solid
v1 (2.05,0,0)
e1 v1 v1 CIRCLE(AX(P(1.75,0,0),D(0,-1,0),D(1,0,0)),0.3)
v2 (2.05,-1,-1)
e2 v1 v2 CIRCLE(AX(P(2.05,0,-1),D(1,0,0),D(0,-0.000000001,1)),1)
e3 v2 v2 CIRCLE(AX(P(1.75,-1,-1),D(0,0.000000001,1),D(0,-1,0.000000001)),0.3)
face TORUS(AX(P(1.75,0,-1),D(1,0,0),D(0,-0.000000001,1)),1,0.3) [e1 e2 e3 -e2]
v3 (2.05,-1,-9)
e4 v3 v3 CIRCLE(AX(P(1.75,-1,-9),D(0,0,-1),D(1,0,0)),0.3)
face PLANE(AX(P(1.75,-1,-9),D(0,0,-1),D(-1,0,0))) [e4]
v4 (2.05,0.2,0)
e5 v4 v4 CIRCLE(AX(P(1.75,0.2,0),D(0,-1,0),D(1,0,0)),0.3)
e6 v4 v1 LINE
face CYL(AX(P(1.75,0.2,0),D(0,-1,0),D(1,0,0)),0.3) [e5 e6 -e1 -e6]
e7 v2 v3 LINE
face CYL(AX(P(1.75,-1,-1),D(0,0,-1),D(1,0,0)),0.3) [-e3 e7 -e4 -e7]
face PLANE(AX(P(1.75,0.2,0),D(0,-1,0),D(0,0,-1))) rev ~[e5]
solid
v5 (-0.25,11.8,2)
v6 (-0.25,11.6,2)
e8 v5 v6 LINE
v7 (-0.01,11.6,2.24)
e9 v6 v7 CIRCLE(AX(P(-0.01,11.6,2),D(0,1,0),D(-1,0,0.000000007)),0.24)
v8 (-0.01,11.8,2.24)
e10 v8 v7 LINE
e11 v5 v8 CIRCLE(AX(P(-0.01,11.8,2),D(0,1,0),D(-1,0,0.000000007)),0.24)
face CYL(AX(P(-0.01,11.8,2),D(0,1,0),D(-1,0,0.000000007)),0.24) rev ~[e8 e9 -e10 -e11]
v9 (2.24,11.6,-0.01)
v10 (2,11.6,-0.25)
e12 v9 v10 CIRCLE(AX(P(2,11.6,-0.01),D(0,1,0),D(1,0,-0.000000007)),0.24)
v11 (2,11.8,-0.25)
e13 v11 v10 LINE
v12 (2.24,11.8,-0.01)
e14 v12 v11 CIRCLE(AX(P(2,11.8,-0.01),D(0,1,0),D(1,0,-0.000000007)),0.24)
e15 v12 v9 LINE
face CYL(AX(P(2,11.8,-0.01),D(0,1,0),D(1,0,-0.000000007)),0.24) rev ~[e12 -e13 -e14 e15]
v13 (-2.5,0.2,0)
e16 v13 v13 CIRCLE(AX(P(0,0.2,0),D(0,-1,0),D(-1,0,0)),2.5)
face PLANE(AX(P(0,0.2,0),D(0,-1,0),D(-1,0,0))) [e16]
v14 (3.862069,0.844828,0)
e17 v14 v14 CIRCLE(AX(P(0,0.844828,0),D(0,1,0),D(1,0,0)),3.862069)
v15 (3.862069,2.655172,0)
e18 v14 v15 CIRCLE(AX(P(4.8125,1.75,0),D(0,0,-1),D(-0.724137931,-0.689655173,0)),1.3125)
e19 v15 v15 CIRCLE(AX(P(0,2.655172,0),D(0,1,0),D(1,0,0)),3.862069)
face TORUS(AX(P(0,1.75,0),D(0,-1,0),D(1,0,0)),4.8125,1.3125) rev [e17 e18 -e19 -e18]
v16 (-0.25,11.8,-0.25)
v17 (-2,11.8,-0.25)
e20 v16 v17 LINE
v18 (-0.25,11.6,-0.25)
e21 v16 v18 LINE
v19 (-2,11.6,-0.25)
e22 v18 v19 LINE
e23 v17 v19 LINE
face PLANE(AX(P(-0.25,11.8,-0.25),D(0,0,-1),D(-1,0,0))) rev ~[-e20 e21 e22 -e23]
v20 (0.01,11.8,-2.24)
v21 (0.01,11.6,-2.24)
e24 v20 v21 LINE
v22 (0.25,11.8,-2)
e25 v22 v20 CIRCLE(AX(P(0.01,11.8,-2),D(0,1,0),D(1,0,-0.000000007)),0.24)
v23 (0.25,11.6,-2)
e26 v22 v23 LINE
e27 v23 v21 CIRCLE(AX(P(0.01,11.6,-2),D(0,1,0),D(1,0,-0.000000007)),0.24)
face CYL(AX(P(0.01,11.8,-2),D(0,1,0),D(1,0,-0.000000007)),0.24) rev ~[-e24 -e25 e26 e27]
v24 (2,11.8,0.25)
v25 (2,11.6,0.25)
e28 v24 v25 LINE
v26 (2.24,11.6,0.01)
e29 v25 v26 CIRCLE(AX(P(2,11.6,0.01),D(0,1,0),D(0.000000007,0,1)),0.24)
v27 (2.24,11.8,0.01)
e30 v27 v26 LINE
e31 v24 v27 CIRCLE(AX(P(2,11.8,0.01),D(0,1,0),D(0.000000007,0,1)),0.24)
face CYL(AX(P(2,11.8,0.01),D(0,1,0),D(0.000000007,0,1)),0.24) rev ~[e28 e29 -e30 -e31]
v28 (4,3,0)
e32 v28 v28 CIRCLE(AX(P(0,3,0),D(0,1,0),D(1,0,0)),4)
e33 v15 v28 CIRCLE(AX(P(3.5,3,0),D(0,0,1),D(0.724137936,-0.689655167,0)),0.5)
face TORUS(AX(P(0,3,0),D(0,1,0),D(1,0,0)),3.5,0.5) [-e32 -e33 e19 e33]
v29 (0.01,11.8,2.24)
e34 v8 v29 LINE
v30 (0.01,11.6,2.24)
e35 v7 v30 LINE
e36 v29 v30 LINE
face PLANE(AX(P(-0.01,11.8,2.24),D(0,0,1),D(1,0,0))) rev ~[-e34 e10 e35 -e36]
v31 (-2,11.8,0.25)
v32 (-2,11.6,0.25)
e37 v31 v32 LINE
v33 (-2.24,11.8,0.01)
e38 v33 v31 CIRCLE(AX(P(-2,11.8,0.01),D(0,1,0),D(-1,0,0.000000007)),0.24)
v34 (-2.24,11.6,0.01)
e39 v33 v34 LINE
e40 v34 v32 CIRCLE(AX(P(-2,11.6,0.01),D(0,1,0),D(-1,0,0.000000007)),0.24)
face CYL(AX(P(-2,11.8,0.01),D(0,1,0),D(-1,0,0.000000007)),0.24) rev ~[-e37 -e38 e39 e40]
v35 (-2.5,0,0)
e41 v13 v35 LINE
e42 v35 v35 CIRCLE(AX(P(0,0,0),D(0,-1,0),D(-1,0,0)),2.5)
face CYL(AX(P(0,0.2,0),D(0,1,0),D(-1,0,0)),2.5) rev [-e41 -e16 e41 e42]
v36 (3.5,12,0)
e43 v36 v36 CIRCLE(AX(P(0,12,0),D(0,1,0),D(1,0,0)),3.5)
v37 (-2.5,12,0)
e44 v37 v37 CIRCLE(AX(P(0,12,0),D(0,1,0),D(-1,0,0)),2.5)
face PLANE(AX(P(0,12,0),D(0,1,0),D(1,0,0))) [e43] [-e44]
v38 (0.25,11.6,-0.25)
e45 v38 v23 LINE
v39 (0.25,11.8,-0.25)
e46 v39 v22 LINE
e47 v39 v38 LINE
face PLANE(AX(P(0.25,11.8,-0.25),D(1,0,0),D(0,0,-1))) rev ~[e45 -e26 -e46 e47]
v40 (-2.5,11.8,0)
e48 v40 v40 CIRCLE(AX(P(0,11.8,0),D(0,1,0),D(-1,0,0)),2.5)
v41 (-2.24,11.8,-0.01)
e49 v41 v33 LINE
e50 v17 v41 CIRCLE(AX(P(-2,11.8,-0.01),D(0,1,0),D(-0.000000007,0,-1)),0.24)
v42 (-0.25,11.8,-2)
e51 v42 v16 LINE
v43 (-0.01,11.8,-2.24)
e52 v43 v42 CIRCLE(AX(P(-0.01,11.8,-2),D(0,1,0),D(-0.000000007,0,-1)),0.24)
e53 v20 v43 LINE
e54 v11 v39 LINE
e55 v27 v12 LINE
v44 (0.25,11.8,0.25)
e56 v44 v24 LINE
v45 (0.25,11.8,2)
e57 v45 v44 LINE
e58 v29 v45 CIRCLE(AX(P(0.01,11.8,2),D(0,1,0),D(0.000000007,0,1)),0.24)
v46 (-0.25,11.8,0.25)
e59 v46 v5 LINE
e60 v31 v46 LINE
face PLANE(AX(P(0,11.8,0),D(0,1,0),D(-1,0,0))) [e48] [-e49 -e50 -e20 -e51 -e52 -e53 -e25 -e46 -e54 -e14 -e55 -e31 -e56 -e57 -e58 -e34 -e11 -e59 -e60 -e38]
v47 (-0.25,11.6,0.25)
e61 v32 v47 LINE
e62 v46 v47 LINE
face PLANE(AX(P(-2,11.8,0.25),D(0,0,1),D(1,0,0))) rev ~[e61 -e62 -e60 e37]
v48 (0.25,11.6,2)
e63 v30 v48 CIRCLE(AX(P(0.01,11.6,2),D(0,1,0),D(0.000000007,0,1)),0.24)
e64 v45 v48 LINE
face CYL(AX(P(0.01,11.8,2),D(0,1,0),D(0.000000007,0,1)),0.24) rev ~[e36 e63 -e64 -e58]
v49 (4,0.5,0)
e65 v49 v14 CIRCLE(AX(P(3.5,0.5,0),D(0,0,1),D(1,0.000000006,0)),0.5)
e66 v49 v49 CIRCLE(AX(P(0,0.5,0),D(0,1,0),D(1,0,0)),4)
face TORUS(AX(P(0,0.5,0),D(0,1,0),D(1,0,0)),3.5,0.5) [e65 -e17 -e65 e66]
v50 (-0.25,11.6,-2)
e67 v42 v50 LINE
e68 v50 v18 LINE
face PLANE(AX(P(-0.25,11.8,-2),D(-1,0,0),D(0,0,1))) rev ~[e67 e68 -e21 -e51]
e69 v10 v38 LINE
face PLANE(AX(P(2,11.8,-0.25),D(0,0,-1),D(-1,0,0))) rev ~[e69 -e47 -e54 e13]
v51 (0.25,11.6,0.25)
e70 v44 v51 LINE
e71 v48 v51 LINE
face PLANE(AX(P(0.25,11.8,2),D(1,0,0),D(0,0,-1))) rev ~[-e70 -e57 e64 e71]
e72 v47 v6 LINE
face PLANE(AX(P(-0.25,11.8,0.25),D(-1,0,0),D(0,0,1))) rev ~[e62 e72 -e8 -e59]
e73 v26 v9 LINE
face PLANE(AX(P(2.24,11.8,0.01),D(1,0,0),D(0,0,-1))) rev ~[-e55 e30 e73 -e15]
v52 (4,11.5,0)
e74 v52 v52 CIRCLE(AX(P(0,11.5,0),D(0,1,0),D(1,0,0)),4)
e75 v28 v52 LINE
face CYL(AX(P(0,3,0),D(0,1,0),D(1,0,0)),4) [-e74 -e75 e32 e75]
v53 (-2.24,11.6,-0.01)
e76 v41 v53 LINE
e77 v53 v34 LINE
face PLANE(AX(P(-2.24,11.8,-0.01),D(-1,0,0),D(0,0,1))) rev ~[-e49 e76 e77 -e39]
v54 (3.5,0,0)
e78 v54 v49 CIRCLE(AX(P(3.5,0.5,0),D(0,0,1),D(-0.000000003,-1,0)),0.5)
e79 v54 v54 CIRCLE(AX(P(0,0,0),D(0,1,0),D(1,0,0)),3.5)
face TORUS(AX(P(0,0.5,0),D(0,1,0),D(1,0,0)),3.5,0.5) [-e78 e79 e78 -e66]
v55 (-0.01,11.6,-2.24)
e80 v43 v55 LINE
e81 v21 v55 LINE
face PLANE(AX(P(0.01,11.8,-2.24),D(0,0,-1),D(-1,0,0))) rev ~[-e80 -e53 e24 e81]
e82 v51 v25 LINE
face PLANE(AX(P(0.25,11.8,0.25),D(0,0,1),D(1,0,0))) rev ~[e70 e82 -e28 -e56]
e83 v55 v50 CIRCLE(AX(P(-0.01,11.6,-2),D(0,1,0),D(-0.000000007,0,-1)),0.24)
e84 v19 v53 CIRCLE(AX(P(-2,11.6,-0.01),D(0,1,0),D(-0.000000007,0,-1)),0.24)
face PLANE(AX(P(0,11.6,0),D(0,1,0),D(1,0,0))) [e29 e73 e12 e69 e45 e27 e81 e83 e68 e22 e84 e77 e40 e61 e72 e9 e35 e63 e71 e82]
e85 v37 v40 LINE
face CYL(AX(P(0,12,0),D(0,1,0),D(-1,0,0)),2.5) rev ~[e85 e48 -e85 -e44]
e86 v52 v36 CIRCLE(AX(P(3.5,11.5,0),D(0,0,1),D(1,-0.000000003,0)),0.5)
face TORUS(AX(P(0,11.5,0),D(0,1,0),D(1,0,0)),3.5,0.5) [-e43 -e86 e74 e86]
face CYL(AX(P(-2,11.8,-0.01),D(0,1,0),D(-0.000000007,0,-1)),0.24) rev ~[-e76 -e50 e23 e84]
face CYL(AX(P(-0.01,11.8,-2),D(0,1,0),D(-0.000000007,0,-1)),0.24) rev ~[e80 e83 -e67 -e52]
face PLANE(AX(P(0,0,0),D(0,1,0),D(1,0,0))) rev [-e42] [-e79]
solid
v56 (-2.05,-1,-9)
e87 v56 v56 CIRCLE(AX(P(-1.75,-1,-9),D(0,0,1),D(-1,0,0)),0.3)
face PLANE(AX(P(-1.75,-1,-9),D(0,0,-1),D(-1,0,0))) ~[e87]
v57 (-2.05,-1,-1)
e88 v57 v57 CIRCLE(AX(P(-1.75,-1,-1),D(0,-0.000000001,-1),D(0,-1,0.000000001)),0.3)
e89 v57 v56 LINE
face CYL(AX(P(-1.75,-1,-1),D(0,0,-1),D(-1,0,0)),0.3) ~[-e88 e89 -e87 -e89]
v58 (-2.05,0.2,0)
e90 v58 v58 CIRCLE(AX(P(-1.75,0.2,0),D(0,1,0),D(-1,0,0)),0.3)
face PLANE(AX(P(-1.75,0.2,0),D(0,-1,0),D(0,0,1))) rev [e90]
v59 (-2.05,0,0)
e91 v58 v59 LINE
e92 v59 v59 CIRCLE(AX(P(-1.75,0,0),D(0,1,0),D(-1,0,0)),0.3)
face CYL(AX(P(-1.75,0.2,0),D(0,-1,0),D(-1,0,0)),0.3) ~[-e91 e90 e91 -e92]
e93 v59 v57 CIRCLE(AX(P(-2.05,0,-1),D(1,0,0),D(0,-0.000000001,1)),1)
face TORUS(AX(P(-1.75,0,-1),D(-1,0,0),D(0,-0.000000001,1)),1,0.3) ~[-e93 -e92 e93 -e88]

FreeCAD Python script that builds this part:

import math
import FreeCAD as App
import Part
import Sketcher

doc = App.newDocument("Part")
body = doc.addObject("PartDesign::Body", "Body")

# Sketch on XY plane
sketch1 = body.newObject("Sketcher::SketchObject", "Sketch")
sketch1.AttachmentSupport = (doc.getObject("XY_Plane"), [""])
sketch1.MapMode = "FlatFace"
sketch1.addGeometry([
    Part.LineSegment(App.Vector(0, 0, 0), App.Vector(3.5, 0, 0)),  # 0
    Part.ArcOfCircle(Part.Circle(App.Vector(3.5, 0.5, 0), App.Vector(0, 0, 1), 0.5), math.radians(-90), math.radians(0)),  # 1
    Part.ArcOfCircle(Part.Circle(App.Vector(3.5, 0.5, 0), App.Vector(0, 0, 1), 0.5), math.radians(0), math.radians(44)),  # 2
    Part.ArcOfCircle(Part.Circle(App.Vector(4.81, 1.75, 0), App.Vector(0, 0, 1), 1.31), math.radians(136), math.radians(224)),  # 3
    Part.ArcOfCircle(Part.Circle(App.Vector(3.5, 3, 0), App.Vector(0, 0, 1), 0.5), math.radians(-44), math.radians(0)),  # 4
    Part.LineSegment(App.Vector(4, 3, 0), App.Vector(4, 11.5, 0)),  # 5
    Part.ArcOfCircle(Part.Circle(App.Vector(3.5, 11.5, 0), App.Vector(0, 0, 1), 0.5), math.radians(0), math.radians(90)),  # 6
    Part.LineSegment(App.Vector(3.5, 12, 0), App.Vector(0, 12, 0)),  # 7
    Part.LineSegment(App.Vector(0, 12, 0), App.Vector(0, 0, 0)),  # 8
], False)
sketch1.addConstraint([
    Sketcher.Constraint("Tangent", 0, 2, 1, 1),
    Sketcher.Constraint("Tangent", 1, 2, 2, 1),
    Sketcher.Constraint("Tangent", 2, 2, 3, 2),
    Sketcher.Constraint("Tangent", 3, 1, 4, 1),
    Sketcher.Constraint("Tangent", 4, 2, 5, 1),
    Sketcher.Constraint("Tangent", 5, 2, 6, 1),
    Sketcher.Constraint("Tangent", 6, 2, 7, 1),
    Sketcher.Constraint("Coincident", 7, 2, 8, 1),
    Sketcher.Constraint("Coincident", 8, 2, 0, 1),
    Sketcher.Constraint("Horizontal", 0),
    Sketcher.Constraint("Vertical", 5),
    Sketcher.Constraint("Horizontal", 7),
    Sketcher.Constraint("Vertical", 8),
    Sketcher.Constraint("Coincident", 8, 2, -1, 1),
    Sketcher.Constraint("Equal", 1, 2),
    Sketcher.Constraint("Equal", 2, 4),
    Sketcher.Constraint("Equal", 4, 6),
    Sketcher.Constraint("Horizontal", 2, 3, 1, 2),
    Sketcher.Constraint("Vertical", 2, 3, 4, 3),
    Sketcher.Constraint("Radius", 1, 0.5),
    Sketcher.Constraint("DistanceY", 8, 2, 8, 1, 12.0),
    Sketcher.Constraint("DistanceX", 0, 1, 0, 2, 3.5),
    Sketcher.Constraint("DistanceY", 5, 1, 5, 2, 8.5),
    Sketcher.Constraint("Radius", 3, 1.3125),
])
revolution = body.newObject("PartDesign::Revolution", "Revolution")
revolution.Profile = sketch1
revolution.ReferenceAxis = (sketch1, ["V_Axis"])
revolution.Angle = 360

# Sketch on XZ plane
sketch2 = body.newObject("Sketcher::SketchObject", "Sketch001")
sketch2.AttachmentSupport = (doc.getObject("XZ_Plane"), [""])
sketch2.MapMode = "FlatFace"
sketch2.AttachmentOffset = App.Placement(App.Vector(0, 0, -12), App.Rotation())
sketch2.addGeometry(Part.Circle(App.Vector(0, 0, 0), App.Vector(0, 0, 1), 2.5), False)
sketch2.addConstraint([
    Sketcher.Constraint("Coincident", 0, 3, -1, 1),
    Sketcher.Constraint("Diameter", 0, 5.0),
])
pocket1 = body.newObject("PartDesign::Pocket", "Pocket")
pocket1.Profile = sketch2
pocket1.Length = 0.2
pocket1.Reversed = True

# Sketch on XZ plane
sketch3 = body.newObject("Sketcher::SketchObject", "Sketch002")
sketch3.AttachmentSupport = (doc.getObject("XZ_Plane"), [""])
sketch3.MapMode = "FlatFace"
sketch3.AttachmentOffset = App.Placement(App.Vector(0, 0, -11.8), App.Rotation())
sketch3.addGeometry([
    Part.LineSegment(App.Vector(-0.25, 0.25, 0), App.Vector(-0.25, 2, 0)),  # 0
    Part.ArcOfCircle(Part.Circle(App.Vector(-0.01, 2, 0), App.Vector(0, 0, 1), 0.24), math.radians(90), math.radians(180)),  # 1
    Part.LineSegment(App.Vector(-0.01, 2.24, 0), App.Vector(0.01, 2.24, 0)),  # 2
    Part.ArcOfCircle(Part.Circle(App.Vector(0.01, 2, 0), App.Vector(0, 0, 1), 0.24), math.radians(0), math.radians(90)),  # 3
    Part.LineSegment(App.Vector(0.25, 2, 0), App.Vector(0.25, 0.25, 0)),  # 4
    Part.LineSegment(App.Vector(0.25, 0.25, 0), App.Vector(2, 0.25, 0)),  # 5
    Part.ArcOfCircle(Part.Circle(App.Vector(2, 0.01, 0), App.Vector(0, 0, 1), 0.24), math.radians(0), math.radians(90)),  # 6
    Part.LineSegment(App.Vector(2.24, 0.01, 0), App.Vector(2.24, -0.01, 0)),  # 7
    Part.ArcOfCircle(Part.Circle(App.Vector(2, -0.01, 0), App.Vector(0, 0, 1), 0.24), math.radians(-90), math.radians(0)),  # 8
    Part.LineSegment(App.Vector(2, -0.25, 0), App.Vector(0.25, -0.25, 0)),  # 9
    Part.LineSegment(App.Vector(0.25, -0.25, 0), App.Vector(0.25, -2, 0)),  # 10
    Part.ArcOfCircle(Part.Circle(App.Vector(0.01, -2, 0), App.Vector(0, 0, 1), 0.24), math.radians(-90), math.radians(0)),  # 11
    Part.LineSegment(App.Vector(0.01, -2.24, 0), App.Vector(-0.01, -2.24, 0)),  # 12
    Part.ArcOfCircle(Part.Circle(App.Vector(-0.01, -2, 0), App.Vector(0, 0, 1), 0.24), math.radians(-180), math.radians(-90)),  # 13
    Part.LineSegment(App.Vector(-0.25, -2, 0), App.Vector(-0.25, -0.25, 0)),  # 14
    Part.LineSegment(App.Vector(-0.25, -0.25, 0), App.Vector(-2, -0.25, 0)),  # 15
    Part.ArcOfCircle(Part.Circle(App.Vector(-2, -0.01, 0), App.Vector(0, 0, 1), 0.24), math.radians(-180), math.radians(-90)),  # 16
    Part.LineSegment(App.Vector(-2.24, -0.01, 0), App.Vector(-2.24, 0.01, 0)),  # 17
    Part.ArcOfCircle(Part.Circle(App.Vector(-2, 0.01, 0), App.Vector(0, 0, 1), 0.24), math.radians(90), math.radians(180)),  # 18
    Part.LineSegment(App.Vector(-2, 0.25, 0), App.Vector(-0.25, 0.25, 0)),  # 19
], False)
sketch3.addConstraint([
    Sketcher.Constraint("Tangent", 0, 2, 1, 2),
    Sketcher.Constraint("Tangent", 1, 1, 2, 1),
    Sketcher.Constraint("Tangent", 2, 2, 3, 2),
    Sketcher.Constraint("Tangent", 3, 1, 4, 1),
    Sketcher.Constraint("Coincident", 4, 2, 5, 1),
    Sketcher.Constraint("Tangent", 5, 2, 6, 2),
    Sketcher.Constraint("Tangent", 6, 1, 7, 1),
    Sketcher.Constraint("Tangent", 7, 2, 8, 2),
    Sketcher.Constraint("Tangent", 8, 1, 9, 1),
    Sketcher.Constraint("Coincident", 9, 2, 10, 1),
    Sketcher.Constraint("Tangent", 10, 2, 11, 2),
    Sketcher.Constraint("Tangent", 11, 1, 12, 1),
    Sketcher.Constraint("Tangent", 12, 2, 13, 2),
    Sketcher.Constraint("Tangent", 13, 1, 14, 1),
    Sketcher.Constraint("Coincident", 14, 2, 15, 1),
    Sketcher.Constraint("Tangent", 15, 2, 16, 2),
    Sketcher.Constraint("Tangent", 16, 1, 17, 1),
    Sketcher.Constraint("Tangent", 17, 2, 18, 2),
    Sketcher.Constraint("Tangent", 18, 1, 19, 1),
    Sketcher.Constraint("Coincident", 19, 2, 0, 1),
    Sketcher.Constraint("Vertical", 0),
    Sketcher.Constraint("Horizontal", 2),
    Sketcher.Constraint("Vertical", 4),
    Sketcher.Constraint("Horizontal", 5),
    Sketcher.Constraint("Vertical", 7),
    Sketcher.Constraint("Horizontal", 9),
    Sketcher.Constraint("Vertical", 10),
    Sketcher.Constraint("Horizontal", 12),
    Sketcher.Constraint("Vertical", 14),
    Sketcher.Constraint("Horizontal", 15),
    Sketcher.Constraint("Vertical", 17),
    Sketcher.Constraint("Horizontal", 19),
    Sketcher.Constraint("Equal", 1, 3),
    Sketcher.Constraint("Equal", 3, 6),
    Sketcher.Constraint("Equal", 6, 8),
    Sketcher.Constraint("Equal", 8, 11),
    Sketcher.Constraint("Equal", 11, 13),
    Sketcher.Constraint("Equal", 13, 16),
    Sketcher.Constraint("Equal", 16, 18),
    Sketcher.Constraint("Symmetric", 1, 3, 11, 3, -1, 1),
    Sketcher.Constraint("Symmetric", 6, 3, 16, 3, -1, 1),
    Sketcher.Constraint("Symmetric", 9, 2, 14, 2, -2),
    Sketcher.Constraint("Symmetric", 4, 2, 19, 2, -2),
    Sketcher.Constraint("Equal", 19, 0),
    Sketcher.Constraint("Equal", 12, 7),
    Sketcher.Constraint("Radius", 1, 0.24),
    Sketcher.Constraint("DistanceY", -1, 1, 1, 3, 2.0),
    Sketcher.Constraint("DistanceX", 2, 1, 2, 2, 0.02),
])
pocket2 = body.newObject("PartDesign::Pocket", "Pocket001")
pocket2.Profile = sketch3
pocket2.Length = 0.2
pocket2.Reversed = True

# Sketch on XZ plane
sketch4 = body.newObject("Sketcher::SketchObject", "Sketch003")
sketch4.AttachmentSupport = (doc.getObject("XZ_Plane"), [""])
sketch4.MapMode = "FlatFace"
sketch4.AttachmentOffset = App.Placement(App.Vector(0, 0, -0.2), App.Rotation())
sketch4.addGeometry(Part.Circle(App.Vector(0, 0, 0), App.Vector(0, 0, 1), 2.5), False)
sketch4.addConstraint([
    Sketcher.Constraint("Coincident", 0, 3, -1, 1),
    Sketcher.Constraint("Diameter", 0, 5.0),
])
pocket3 = body.newObject("PartDesign::Pocket", "Pocket002")
pocket3.Profile = sketch4
pocket3.Length = 0.2
pocket3.Reversed = True
body2 = doc.addObject("PartDesign::Body", "Body001")

# Sketch on XZ plane
sketch5 = body2.newObject("Sketcher::SketchObject", "Sketch004")
sketch5.AttachmentSupport = (doc.getObject("XZ_Plane001"), [""])
sketch5.MapMode = "FlatFace"
sketch5.AttachmentOffset = App.Placement(App.Vector(0, 0, -0.2), App.Rotation())
sketch5.addGeometry(Part.Circle(App.Vector(1.75, 0, 0), App.Vector(0, 0, 1), 0.3), False)
sketch5.addConstraint([
    Sketcher.Constraint("PointOnObject", 0, 3, -1),
    Sketcher.Constraint("Diameter", 0, 0.6),
    Sketcher.Constraint("DistanceX", -1, 1, 0, 3, 1.75),
])

# Sketch on YZ plane
sketch6 = body2.newObject("Sketcher::SketchObject", "Sketch005")
sketch6.AttachmentSupport = (doc.getObject("YZ_Plane001"), [""])
sketch6.MapMode = "FlatFace"
sketch6.AttachmentOffset = App.Placement(App.Vector(0, 0, 1.75), App.Rotation())
sketch6.addGeometry([
    Part.LineSegment(App.Vector(0.2, 0, 0), App.Vector(0, 0, 0)),
    Part.ArcOfCircle(Part.Circle(App.Vector(0, -1, 0), App.Vector(0, 0, 1), 1), math.radians(90), math.radians(180)),
    Part.LineSegment(App.Vector(-1, -1, 0), App.Vector(-1, -9, 0)),
], False)
sketch6.addConstraint([
    Sketcher.Constraint("Tangent", 0, 2, 1, 1),
    Sketcher.Constraint("Tangent", 1, 2, 2, 1),
    Sketcher.Constraint("Horizontal", 0),
    Sketcher.Constraint("Vertical", 2),
    Sketcher.Constraint("Coincident", 0, 2, -1, 1),
    Sketcher.Constraint("Radius", 1, 1.0),
    Sketcher.Constraint("DistanceY", 2, 2, 2, 1, 8.0),
    Sketcher.Constraint("DistanceX", 0, 2, 0, 1, 0.2),
])
doc.recompute()

additivepipe = body2.newObject("PartDesign::AdditivePipe", "AdditivePipe")
additivepipe.Profile = sketch5
additivepipe.Spine = (sketch6, ["Edge1", "Edge2", "Edge3"])
body3 = doc.addObject("PartDesign::Body", "Body002")
doc.recompute()

mirroring = doc.addObject("Part::Mirroring", "Mirroring")
mirroring.Source = body2
mirroring.Base = App.Vector(0, 0, 0)
mirroring.Normal = App.Vector(1, 0, 0)
body3.BaseFeature = mirroring
doc.recompute()
mirroring.Visibility = False

doc.recompute()
